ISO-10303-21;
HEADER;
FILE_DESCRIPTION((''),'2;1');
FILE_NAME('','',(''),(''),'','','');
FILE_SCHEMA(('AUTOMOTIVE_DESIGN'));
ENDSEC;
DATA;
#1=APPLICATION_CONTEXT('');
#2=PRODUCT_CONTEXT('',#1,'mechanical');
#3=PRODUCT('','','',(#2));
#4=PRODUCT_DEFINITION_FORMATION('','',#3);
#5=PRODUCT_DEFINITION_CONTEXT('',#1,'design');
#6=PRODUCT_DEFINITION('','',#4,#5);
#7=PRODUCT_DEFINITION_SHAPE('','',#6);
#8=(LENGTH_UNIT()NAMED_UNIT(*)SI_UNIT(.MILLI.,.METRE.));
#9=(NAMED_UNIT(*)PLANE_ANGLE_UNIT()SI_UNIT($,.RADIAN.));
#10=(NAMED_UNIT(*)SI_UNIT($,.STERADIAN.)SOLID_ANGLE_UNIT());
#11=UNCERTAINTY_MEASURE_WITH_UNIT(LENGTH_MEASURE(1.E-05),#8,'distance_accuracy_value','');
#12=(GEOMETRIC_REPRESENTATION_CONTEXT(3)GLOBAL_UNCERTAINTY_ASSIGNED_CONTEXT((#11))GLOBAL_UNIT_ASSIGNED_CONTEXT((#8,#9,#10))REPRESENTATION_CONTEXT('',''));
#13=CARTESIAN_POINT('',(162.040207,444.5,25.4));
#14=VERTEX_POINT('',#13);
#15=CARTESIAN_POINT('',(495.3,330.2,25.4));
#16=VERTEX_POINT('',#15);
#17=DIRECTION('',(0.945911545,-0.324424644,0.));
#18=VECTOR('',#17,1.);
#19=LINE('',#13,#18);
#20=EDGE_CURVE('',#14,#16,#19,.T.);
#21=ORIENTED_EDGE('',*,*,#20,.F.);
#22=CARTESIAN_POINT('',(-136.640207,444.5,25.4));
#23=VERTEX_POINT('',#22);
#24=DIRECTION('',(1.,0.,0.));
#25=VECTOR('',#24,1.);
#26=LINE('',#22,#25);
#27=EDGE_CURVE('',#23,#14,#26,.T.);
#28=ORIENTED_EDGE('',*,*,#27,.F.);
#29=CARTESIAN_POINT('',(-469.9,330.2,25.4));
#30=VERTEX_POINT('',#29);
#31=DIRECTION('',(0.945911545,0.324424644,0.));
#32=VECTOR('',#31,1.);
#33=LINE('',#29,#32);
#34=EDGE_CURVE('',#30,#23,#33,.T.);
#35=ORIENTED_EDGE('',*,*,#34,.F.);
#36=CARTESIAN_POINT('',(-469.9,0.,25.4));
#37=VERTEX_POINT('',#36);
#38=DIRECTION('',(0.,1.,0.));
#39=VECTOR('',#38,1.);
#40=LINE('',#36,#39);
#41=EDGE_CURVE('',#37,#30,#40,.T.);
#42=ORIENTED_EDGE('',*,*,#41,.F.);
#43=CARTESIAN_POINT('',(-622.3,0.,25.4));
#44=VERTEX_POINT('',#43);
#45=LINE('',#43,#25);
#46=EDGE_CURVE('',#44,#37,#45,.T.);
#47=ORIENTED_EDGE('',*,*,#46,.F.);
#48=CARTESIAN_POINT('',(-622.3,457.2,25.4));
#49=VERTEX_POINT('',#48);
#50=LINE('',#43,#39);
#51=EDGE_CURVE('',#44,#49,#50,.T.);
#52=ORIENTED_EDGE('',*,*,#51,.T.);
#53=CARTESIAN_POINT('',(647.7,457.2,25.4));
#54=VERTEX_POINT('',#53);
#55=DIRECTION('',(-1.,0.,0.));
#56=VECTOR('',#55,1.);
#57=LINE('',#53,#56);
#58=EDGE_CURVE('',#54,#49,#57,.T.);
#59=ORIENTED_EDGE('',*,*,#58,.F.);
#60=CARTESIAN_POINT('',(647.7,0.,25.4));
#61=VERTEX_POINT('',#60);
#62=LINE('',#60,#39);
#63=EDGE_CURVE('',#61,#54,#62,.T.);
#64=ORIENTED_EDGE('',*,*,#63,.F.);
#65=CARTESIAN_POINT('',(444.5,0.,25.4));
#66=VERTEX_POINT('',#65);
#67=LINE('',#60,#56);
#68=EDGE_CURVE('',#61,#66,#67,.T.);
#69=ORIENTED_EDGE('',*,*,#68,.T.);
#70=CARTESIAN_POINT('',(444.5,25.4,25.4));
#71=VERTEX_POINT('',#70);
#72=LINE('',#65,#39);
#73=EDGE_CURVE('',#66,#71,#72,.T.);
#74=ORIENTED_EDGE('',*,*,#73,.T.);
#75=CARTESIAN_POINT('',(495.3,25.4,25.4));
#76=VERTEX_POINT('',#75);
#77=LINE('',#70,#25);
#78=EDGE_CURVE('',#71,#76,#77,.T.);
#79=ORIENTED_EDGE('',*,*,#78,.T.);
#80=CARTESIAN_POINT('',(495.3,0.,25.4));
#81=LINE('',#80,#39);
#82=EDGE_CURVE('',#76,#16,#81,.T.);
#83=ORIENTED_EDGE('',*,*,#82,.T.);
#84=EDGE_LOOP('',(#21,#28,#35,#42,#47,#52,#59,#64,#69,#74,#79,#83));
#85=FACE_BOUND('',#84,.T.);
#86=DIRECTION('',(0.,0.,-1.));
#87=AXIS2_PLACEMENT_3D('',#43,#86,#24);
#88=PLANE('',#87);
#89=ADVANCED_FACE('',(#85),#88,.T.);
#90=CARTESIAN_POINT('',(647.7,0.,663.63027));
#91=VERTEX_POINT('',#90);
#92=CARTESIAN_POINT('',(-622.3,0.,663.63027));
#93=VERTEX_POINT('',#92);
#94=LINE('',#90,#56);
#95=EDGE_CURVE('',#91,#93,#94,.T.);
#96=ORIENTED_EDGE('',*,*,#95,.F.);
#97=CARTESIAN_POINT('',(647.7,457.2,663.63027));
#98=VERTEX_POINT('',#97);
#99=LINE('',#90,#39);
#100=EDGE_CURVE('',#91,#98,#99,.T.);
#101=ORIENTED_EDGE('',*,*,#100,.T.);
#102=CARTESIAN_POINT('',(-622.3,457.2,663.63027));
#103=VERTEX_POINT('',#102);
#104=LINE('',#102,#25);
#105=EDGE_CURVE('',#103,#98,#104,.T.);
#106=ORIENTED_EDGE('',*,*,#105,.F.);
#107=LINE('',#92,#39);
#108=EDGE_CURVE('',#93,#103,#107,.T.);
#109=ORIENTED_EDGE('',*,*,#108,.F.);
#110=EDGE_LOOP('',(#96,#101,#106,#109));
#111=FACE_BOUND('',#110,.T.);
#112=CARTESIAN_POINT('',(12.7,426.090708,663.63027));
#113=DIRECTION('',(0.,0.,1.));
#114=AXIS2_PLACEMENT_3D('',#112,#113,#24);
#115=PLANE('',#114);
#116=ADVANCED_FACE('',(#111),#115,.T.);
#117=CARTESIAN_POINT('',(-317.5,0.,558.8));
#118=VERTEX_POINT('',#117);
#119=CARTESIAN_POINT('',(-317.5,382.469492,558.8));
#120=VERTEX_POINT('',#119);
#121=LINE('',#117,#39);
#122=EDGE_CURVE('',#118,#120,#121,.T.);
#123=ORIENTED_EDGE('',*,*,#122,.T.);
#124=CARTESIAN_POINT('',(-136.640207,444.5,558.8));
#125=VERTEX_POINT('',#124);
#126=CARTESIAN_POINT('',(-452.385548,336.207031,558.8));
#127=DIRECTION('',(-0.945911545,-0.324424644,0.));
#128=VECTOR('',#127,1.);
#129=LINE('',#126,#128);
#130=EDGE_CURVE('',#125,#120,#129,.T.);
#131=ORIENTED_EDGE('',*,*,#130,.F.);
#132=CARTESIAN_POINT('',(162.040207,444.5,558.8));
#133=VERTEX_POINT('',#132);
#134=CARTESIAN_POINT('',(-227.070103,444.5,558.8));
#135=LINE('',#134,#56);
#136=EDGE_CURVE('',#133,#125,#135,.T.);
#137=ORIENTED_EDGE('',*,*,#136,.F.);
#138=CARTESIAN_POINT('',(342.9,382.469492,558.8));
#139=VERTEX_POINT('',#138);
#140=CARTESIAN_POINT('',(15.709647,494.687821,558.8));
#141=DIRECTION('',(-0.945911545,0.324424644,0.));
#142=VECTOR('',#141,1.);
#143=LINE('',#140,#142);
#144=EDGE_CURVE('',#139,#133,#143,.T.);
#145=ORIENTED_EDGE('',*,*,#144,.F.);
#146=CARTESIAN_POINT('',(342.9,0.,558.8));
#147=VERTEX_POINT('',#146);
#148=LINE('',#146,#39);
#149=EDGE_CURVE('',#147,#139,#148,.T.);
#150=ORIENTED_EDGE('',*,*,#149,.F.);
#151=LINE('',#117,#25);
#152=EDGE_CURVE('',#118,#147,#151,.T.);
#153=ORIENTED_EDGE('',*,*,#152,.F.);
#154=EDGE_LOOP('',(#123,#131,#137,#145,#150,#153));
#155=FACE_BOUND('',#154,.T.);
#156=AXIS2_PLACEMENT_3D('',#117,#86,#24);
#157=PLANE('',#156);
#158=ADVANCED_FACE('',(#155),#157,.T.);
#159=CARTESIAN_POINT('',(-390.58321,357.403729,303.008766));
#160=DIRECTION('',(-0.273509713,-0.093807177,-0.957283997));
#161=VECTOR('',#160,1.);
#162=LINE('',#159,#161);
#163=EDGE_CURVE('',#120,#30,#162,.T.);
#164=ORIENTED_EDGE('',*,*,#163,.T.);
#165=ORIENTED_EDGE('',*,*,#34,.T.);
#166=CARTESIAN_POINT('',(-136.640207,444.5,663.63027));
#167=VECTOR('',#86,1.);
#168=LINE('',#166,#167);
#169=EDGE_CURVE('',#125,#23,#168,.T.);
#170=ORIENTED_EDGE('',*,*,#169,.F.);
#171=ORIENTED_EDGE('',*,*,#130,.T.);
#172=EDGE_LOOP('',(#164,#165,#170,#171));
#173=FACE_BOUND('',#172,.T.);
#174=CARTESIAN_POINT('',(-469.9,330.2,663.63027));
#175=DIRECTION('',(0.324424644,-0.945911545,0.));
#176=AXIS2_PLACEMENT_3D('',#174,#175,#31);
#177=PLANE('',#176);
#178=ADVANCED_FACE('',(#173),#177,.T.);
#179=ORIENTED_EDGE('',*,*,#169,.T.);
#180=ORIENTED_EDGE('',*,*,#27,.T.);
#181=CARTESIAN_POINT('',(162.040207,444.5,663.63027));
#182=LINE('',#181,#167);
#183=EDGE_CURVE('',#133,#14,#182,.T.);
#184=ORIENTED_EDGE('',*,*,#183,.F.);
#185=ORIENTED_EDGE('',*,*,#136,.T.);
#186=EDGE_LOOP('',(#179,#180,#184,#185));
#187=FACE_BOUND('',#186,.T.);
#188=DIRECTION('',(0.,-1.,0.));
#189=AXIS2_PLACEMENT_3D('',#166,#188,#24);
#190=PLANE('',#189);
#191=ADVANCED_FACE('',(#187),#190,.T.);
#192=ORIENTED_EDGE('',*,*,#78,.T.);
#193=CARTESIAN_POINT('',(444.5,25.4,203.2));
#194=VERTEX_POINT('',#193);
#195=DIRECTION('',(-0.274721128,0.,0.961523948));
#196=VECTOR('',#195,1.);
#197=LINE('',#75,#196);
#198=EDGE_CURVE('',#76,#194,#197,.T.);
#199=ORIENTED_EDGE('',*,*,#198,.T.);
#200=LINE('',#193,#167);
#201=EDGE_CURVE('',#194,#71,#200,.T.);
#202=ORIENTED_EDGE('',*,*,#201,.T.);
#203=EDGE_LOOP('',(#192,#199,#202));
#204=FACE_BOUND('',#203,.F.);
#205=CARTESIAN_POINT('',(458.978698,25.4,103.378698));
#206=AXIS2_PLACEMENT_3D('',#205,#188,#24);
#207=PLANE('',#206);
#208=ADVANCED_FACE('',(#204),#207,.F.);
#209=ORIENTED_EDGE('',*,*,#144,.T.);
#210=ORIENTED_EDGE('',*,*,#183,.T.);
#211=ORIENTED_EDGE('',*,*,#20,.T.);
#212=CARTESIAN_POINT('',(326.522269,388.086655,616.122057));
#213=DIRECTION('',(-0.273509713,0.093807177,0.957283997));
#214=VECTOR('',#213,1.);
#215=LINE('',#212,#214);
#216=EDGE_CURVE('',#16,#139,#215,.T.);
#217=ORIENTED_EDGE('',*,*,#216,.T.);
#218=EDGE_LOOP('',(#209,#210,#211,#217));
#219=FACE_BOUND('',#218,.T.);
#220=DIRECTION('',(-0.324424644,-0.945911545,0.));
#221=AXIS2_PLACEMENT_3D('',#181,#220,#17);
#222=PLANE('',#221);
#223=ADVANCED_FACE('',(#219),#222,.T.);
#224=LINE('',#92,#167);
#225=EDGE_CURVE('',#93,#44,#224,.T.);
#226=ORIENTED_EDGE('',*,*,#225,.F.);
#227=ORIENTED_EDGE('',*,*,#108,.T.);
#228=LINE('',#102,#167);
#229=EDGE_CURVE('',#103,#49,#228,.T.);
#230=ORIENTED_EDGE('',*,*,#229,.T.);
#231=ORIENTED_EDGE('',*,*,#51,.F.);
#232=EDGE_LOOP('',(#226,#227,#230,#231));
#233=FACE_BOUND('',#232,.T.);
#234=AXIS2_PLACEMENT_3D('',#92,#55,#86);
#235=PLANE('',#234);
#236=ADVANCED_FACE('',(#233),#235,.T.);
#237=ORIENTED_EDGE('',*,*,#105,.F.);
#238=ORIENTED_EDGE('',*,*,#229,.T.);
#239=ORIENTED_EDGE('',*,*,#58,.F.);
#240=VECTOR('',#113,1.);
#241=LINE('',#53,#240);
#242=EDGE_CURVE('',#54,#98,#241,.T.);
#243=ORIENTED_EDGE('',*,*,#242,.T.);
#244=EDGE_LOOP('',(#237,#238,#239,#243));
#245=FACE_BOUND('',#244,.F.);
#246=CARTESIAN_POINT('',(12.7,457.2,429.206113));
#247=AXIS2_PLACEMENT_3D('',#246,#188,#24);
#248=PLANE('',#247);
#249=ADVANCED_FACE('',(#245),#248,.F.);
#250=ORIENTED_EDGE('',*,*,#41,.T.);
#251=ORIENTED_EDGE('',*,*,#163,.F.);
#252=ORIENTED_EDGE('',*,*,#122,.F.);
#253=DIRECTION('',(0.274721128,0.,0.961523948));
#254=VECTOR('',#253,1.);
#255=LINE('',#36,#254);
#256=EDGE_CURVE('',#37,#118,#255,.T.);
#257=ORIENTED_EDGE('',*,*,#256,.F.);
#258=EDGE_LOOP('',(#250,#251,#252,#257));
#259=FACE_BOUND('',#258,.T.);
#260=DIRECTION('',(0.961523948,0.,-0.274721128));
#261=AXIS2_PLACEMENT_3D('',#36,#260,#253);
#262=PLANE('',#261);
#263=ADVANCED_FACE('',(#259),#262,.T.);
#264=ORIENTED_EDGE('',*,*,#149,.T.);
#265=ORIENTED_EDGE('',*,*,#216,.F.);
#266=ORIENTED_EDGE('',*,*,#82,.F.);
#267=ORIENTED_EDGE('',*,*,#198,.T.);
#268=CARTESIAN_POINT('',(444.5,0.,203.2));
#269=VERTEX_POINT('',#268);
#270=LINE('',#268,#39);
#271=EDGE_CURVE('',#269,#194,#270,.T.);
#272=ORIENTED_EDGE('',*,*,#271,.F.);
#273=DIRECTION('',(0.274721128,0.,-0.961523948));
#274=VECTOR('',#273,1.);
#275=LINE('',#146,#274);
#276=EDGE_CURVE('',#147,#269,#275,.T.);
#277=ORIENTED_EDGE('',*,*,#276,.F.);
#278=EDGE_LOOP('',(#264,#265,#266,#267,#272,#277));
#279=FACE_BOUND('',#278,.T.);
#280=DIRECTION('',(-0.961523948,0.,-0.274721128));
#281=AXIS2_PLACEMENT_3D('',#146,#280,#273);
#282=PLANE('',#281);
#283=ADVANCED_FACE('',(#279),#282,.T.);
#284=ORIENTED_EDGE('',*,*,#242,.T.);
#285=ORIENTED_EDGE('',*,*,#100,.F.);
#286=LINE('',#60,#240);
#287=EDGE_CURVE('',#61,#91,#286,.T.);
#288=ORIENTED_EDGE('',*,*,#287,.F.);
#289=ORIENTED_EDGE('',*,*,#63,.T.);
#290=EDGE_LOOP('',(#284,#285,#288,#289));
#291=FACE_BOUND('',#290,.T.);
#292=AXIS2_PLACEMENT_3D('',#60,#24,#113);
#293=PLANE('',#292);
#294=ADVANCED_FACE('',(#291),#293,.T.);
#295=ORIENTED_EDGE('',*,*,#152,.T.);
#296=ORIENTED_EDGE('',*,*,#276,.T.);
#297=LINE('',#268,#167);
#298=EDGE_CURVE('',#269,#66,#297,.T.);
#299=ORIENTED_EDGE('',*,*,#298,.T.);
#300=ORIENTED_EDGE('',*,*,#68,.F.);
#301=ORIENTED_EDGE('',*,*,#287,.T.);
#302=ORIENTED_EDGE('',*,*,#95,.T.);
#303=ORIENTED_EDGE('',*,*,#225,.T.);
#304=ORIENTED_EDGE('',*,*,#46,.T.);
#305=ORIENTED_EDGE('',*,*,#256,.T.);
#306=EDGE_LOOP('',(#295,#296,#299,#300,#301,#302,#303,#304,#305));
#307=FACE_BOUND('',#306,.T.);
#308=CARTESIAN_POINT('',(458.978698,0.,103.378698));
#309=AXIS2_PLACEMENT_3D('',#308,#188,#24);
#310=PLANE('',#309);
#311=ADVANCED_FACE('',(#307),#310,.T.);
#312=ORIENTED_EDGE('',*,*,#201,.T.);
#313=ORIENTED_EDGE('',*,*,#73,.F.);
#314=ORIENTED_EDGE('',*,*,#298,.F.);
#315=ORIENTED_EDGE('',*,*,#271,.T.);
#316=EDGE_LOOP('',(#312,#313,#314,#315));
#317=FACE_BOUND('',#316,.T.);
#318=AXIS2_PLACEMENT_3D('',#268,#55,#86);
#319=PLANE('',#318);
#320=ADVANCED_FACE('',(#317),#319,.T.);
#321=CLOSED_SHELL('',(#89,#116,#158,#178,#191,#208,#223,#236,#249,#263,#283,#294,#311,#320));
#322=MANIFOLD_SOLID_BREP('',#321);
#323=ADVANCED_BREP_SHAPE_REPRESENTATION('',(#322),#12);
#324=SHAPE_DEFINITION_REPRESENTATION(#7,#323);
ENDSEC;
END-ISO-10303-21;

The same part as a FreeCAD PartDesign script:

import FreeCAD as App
import Part
import Sketcher
from FreeCAD import Vector
Q = App.Units.Quantity


def add_polygon(sketch, points):
    """Adds a closed chain of lines whose ends are joined by coincident constraints."""
    first, n = sketch.GeometryCount, len(points)
    for a, b in zip(points, points[1:] + points[:1]):
        sketch.addGeometry(Part.LineSegment(App.Vector(*a, 0), App.Vector(*b, 0)), False)
    for i in range(n):
        sketch.addConstraint(Sketcher.Constraint("Coincident", first + i, 2, first + (i + 1) % n, 1))

doc = App.newDocument("Part")
body = doc.addObject("PartDesign::Body", "Body")

# Sketch on XZ plane
sketch1 = body.newObject("Sketcher::SketchObject", "Sketch")
sketch1.AttachmentSupport = (doc.getObject("XZ_Plane"), [""])
sketch1.MapMode = "FlatFace"
add_polygon(sketch1, [(-622, 25), (-470, 25), (-318, 559), (343, 559), (495, 25), (648, 25), (648, 664), (-622, 664)])  # lines 0-7
sketch1.addConstraint([
    Sketcher.Constraint("Horizontal", 0),
    Sketcher.Constraint("Horizontal", 2),
    Sketcher.Constraint("Horizontal", 4),
    Sketcher.Constraint("Vertical", 5),
    Sketcher.Constraint("Horizontal", 6),
    Sketcher.Constraint("Vertical", 7),
    Sketcher.Constraint("Horizontal", 0, 2, 3, 2),
    Sketcher.Constraint("Equal", 0, 4),
    Sketcher.Constraint("Equal", 1, 3),
    Sketcher.Constraint("DistanceX", 0, 1, 0, 2, Q("6 in")),
    Sketcher.Constraint("DistanceX", 2, 1, 2, 2, Q("26 in")),
    Sketcher.Constraint("DistanceX", 6, 2, 6, 1, Q("50 in")),
    Sketcher.Constraint("DistanceY", -1, 1, 0, 2, Q("1 in")),
    Sketcher.Constraint("DistanceY", -1, 1, 1, 2, Q("22 in")),
    Sketcher.Constraint("DistanceX", 0, 2, -1, 1, Q("18.5 in")),
    Sketcher.Constraint("DistanceY", 5, 1, 5, 2, 638.23027),
])
pad1 = body.newObject("PartDesign::Pad", "Pad")
pad1.Profile = sketch1
pad1.Length = Q("18 in")
pad1.Reversed = True

# Sketch on XZ plane
sketch2 = body.newObject("Sketcher::SketchObject", "Sketch001")
sketch2.AttachmentSupport = (doc.getObject("XZ_Plane"), [""])
sketch2.MapMode = "FlatFace"
add_polygon(sketch2, [(444, 25), (495, 25), (444, 203)])  # lines 0-2
sketch2.addConstraint([
    Sketcher.Constraint("Horizontal", 0),
    Sketcher.Constraint("Vertical", 2),
    Sketcher.Constraint("DistanceX", 0, 1, 0, 2, Q("2 in")),
    Sketcher.Constraint("DistanceY", 2, 2, 2, 1, Q("7 in")),
    Sketcher.Constraint("DistanceY", -1, 1, 0, 2, Q("1 in")),
    Sketcher.Constraint("DistanceX", -1, 1, 0, 2, Q("19.5 in")),
])
pad2 = body.newObject("PartDesign::Pad", "Pad001")
pad2.Profile = sketch2
pad2.Length = Q("1 in")
pad2.Reversed = True

# Sketch on XY plane
sketch3 = body.newObject("Sketcher::SketchObject", "Sketch002")
sketch3.AttachmentSupport = (doc.getObject("XY_Plane"), [""])
sketch3.MapMode = "FlatFace"
sketch3.AttachmentOffset = App.Placement(Vector(0, 0, 663.63027), App.Rotation())
add_polygon(sketch3, [(495, 457), (-470, 457), (-470, 330), (-137, 444), (162, 444), (495, 330)])  # lines 0-5
sketch3.addConstraint([
    Sketcher.Constraint("Horizontal", 0),
    Sketcher.Constraint("Vertical", 1),
    Sketcher.Constraint("Horizontal", 3),
    Sketcher.Constraint("Vertical", 5),
    Sketcher.Constraint("Horizontal", 1, 2, 4, 2),
    Sketcher.Constraint("Equal", 2, 4),
    Sketcher.Constraint("DistanceX", 0, 2, 0, 1, Q("38 in")),
    Sketcher.Constraint("DistanceY", 1, 2, 1, 1, Q("5 in")),
    Sketcher.Constraint("DistanceY", -1, 1, 0, 2, Q("18 in")),
    Sketcher.Constraint("DistanceX", 0, 2, -1, 1, Q("18.5 in")),
    Sketcher.Constraint("DistanceY", -1, 1, 2, 2, Q("17.5 in")),
    Sketcher.Constraint("DistanceX", 3, 1, 3, 2, 298.680414),
])
pad3 = body.newObject("PartDesign::Pad", "Pad002")
pad3.Profile = sketch3
pad3.Length = 638.23027
pad3.Reversed = True

doc.recompute()
